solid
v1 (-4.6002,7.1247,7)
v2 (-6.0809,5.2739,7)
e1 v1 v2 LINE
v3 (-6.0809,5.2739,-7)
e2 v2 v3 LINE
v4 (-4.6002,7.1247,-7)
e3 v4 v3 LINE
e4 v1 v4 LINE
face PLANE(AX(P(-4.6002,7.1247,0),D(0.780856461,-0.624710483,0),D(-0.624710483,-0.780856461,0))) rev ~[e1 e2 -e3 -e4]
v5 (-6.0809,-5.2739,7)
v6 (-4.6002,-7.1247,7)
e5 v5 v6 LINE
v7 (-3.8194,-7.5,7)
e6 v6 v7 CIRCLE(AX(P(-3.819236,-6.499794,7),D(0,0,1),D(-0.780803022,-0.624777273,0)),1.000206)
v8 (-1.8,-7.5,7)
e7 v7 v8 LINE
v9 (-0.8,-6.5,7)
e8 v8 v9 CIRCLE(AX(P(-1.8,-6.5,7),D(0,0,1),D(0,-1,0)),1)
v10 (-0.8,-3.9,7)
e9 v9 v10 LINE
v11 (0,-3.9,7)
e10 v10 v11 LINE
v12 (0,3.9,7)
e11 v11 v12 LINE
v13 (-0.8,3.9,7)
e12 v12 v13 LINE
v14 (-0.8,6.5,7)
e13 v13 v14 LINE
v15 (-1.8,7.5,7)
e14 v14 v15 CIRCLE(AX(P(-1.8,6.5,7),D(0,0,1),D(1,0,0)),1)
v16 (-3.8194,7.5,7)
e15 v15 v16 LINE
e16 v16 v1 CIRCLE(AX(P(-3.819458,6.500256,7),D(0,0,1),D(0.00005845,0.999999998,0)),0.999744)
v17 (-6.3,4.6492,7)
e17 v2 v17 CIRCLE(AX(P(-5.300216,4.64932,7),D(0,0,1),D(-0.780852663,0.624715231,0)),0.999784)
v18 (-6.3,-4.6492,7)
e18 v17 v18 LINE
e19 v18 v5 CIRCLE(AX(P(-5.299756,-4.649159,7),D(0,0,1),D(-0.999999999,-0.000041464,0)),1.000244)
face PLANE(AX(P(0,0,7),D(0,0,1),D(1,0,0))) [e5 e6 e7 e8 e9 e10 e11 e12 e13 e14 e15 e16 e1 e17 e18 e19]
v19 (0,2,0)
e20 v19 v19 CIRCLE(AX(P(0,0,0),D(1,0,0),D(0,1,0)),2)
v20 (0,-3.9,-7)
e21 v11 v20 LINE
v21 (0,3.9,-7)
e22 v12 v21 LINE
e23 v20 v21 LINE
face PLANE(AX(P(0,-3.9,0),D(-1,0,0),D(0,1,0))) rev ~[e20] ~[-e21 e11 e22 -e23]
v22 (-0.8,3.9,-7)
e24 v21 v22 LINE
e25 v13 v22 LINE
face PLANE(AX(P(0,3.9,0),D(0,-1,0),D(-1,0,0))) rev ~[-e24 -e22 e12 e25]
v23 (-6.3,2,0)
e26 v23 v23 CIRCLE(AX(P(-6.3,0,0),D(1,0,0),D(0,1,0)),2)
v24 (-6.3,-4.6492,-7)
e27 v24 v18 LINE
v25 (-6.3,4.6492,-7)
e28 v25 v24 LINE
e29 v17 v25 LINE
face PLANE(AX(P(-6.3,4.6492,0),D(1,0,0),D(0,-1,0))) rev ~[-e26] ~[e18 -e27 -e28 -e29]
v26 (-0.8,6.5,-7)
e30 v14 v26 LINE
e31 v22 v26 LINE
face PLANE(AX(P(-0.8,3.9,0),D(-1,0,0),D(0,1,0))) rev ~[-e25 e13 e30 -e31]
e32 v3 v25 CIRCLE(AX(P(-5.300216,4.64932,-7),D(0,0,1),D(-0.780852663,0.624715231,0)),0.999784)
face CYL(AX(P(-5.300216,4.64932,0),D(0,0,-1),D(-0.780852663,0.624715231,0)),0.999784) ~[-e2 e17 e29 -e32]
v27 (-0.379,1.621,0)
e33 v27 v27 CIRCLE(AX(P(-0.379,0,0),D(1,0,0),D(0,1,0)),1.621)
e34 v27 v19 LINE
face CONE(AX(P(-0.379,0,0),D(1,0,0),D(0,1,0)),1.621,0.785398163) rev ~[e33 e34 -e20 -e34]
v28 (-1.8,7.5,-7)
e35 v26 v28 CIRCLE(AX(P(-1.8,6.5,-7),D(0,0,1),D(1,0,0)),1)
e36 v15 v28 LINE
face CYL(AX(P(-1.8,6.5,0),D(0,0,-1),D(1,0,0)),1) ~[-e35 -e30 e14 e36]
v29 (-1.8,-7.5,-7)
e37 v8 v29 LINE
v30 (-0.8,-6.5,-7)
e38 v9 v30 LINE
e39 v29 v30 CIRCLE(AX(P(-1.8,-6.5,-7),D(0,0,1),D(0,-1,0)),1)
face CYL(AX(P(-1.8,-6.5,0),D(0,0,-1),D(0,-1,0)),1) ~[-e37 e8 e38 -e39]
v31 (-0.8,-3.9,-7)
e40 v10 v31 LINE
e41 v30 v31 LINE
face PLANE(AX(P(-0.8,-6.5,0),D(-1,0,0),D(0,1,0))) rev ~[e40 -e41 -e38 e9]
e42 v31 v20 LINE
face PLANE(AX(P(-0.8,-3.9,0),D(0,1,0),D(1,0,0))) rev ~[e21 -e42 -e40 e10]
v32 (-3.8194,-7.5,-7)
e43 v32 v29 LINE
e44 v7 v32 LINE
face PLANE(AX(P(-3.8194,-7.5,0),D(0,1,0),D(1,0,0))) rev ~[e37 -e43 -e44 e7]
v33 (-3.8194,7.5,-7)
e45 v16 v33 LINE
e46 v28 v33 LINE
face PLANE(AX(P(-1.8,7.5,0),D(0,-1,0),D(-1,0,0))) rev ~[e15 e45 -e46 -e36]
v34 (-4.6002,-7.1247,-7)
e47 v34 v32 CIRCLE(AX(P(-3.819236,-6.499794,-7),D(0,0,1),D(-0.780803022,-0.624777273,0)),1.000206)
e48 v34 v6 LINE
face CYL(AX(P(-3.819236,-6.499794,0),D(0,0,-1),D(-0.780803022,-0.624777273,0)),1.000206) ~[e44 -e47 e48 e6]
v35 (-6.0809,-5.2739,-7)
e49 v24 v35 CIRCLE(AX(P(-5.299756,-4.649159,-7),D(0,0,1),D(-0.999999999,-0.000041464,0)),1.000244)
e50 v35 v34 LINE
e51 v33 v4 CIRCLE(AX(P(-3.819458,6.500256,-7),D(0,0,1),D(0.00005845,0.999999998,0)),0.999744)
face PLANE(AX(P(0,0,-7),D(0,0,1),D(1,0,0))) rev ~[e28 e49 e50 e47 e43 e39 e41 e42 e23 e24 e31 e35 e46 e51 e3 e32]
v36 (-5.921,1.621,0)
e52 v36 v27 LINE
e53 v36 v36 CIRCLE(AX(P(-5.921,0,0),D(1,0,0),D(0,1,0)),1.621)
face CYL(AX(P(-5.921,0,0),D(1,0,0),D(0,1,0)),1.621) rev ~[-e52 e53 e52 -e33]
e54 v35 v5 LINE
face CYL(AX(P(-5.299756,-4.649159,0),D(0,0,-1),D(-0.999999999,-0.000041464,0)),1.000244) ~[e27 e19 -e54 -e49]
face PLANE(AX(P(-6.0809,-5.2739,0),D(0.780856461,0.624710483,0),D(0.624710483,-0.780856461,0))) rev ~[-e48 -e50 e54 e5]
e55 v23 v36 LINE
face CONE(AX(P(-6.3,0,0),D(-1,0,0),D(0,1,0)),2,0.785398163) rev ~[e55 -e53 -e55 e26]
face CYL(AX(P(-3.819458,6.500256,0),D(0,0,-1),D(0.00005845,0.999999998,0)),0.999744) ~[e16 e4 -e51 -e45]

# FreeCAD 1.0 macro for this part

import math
import FreeCAD as App
import Part
import Sketcher

V = App.Vector
Q = App.Units.Quantity


def add_polygon(sketch, points):
    """Adds a closed chain of lines whose ends are joined by coincident constraints."""
    first, n = sketch.GeometryCount, len(points)
    for a, b in zip(points, points[1:] + points[:1]):
        sketch.addGeometry(Part.LineSegment(App.Vector(*a, 0), App.Vector(*b, 0)), False)
    for i in range(n):
        sketch.addConstraint(Sketcher.Constraint("Coincident", first + i, 2, first + (i + 1) % n, 1))

doc = App.newDocument("Part")
body = doc.addObject("PartDesign::Body", "Body")

sketch1 = body.newObject("Sketcher::SketchObject", "Sketch")
sketch1.AttachmentSupport = (doc.getObject("XY_Plane"), [""])
sketch1.MapMode = "FlatFace"
sketch1.addGeometry(Part.LineSegment(V(-6.3, 4.6, 0), V(-6.3, -4.6, 0)), False)
sketch1.addGeometry(Part.ArcOfCircle(Part.Circle(V(-5.3, -4.6, 0), V(0, 0, 1), 1), math.radians(180), math.radians(219)), False)
sketch1.addGeometry(Part.LineSegment(V(-6.1, -5.3, 0), V(-4.6, -7.1, 0)), False)
sketch1.addGeometry(Part.ArcOfCircle(Part.Circle(V(-3.8, -6.5, 0), V(0, 0, 1), 1), math.radians(-141), math.radians(-90)), False)
sketch1.addGeometry(Part.LineSegment(V(-3.8, -7.5, 0), V(-1.8, -7.5, 0)), False)
sketch1.addGeometry(Part.ArcOfCircle(Part.Circle(V(-1.8, -6.5, 0), V(0, 0, 1), 1), math.radians(-90), math.radians(0)), False)
sketch1.addGeometry(Part.LineSegment(V(-0.8, -6.5, 0), V(-0.8, -3.9, 0)), False)
sketch1.addGeometry(Part.LineSegment(V(-0.8, -3.9, 0), V(0, -3.9, 0)), False)
sketch1.addGeometry(Part.LineSegment(V(0, -3.9, 0), V(0, 3.9, 0)), False)
sketch1.addGeometry(Part.LineSegment(V(0, 3.9, 0), V(-0.8, 3.9, 0)), False)
sketch1.addGeometry(Part.LineSegment(V(-0.8, 3.9, 0), V(-0.8, 6.5, 0)), False)
sketch1.addGeometry(Part.ArcOfCircle(Part.Circle(V(-1.8, 6.5, 0), V(0, 0, 1), 1), math.radians(0), math.radians(90)), False)
sketch1.addGeometry(Part.LineSegment(V(-1.8, 7.5, 0), V(-3.8, 7.5, 0)), False)
sketch1.addGeometry(Part.ArcOfCircle(Part.Circle(V(-3.8, 6.5, 0), V(0, 0, 1), 1), math.radians(90), math.radians(141)), False)
sketch1.addGeometry(Part.LineSegment(V(-4.6, 7.1, 0), V(-6.1, 5.3, 0)), False)
sketch1.addGeometry(Part.ArcOfCircle(Part.Circle(V(-5.3, 4.6, 0), V(0, 0, 1), 1), math.radians(141), math.radians(180)), False)
sketch1.addConstraint(Sketcher.Constraint("Tangent", 0, 2, 1, 1))
sketch1.addConstraint(Sketcher.Constraint("Tangent", 1, 2, 2, 1))
sketch1.addConstraint(Sketcher.Constraint("Tangent", 2, 2, 3, 1))
sketch1.addConstraint(Sketcher.Constraint("Tangent", 3, 2, 4, 1))
sketch1.addConstraint(Sketcher.Constraint("Tangent", 4, 2, 5, 1))
sketch1.addConstraint(Sketcher.Constraint("Tangent", 5, 2, 6, 1))
sketch1.addConstraint(Sketcher.Constraint("Coincident", 6, 2, 7, 1))
sketch1.addConstraint(Sketcher.Constraint("Coincident", 7, 2, 8, 1))
sketch1.addConstraint(Sketcher.Constraint("Coincident", 8, 2, 9, 1))
sketch1.addConstraint(Sketcher.Constraint("Coincident", 9, 2, 10, 1))
sketch1.addConstraint(Sketcher.Constraint("Tangent", 10, 2, 11, 1))
sketch1.addConstraint(Sketcher.Constraint("Tangent", 11, 2, 12, 1))
sketch1.addConstraint(Sketcher.Constraint("Tangent", 12, 2, 13, 1))
sketch1.addConstraint(Sketcher.Constraint("Tangent", 13, 2, 14, 1))
sketch1.addConstraint(Sketcher.Constraint("Tangent", 14, 2, 15, 1))
sketch1.addConstraint(Sketcher.Constraint("Tangent", 15, 2, 0, 1))
sketch1.addConstraint(Sketcher.Constraint("Vertical", 0))
sketch1.addConstraint(Sketcher.Constraint("Horizontal", 4))
sketch1.addConstraint(Sketcher.Constraint("Vertical", 6))
sketch1.addConstraint(Sketcher.Constraint("Horizontal", 7))
sketch1.addConstraint(Sketcher.Constraint("Vertical", 8))
sketch1.addConstraint(Sketcher.Constraint("Horizontal", 9))
sketch1.addConstraint(Sketcher.Constraint("Vertical", 10))
sketch1.addConstraint(Sketcher.Constraint("Horizontal", 12))
sketch1.addConstraint(Sketcher.Constraint("Equal", 1, 3))
sketch1.addConstraint(Sketcher.Constraint("Equal", 3, 5))
sketch1.addConstraint(Sketcher.Constraint("Equal", 5, 11))
sketch1.addConstraint(Sketcher.Constraint("Equal", 11, 13))
sketch1.addConstraint(Sketcher.Constraint("Equal", 13, 15))
sketch1.addConstraint(Sketcher.Constraint("Symmetric", 7, 2, 8, 2, -1, 1))
sketch1.addConstraint(Sketcher.Constraint("Symmetric", 5, 3, 11, 3, -1))
sketch1.addConstraint(Sketcher.Constraint("Symmetric", 2, 2, 13, 2, -1))
sketch1.addConstraint(Sketcher.Constraint("Radius", 1, 1.0))
sketch1.addConstraint(Sketcher.Constraint("DistanceX", 7, 1, 7, 2, 0.8))
sketch1.addConstraint(Sketcher.Constraint("DistanceY", 6, 1, 6, 2, 2.6))
sketch1.addConstraint(Sketcher.Constraint("DistanceY", 8, 1, 8, 2, 7.8))
sketch1.addConstraint(Sketcher.Constraint("DistanceX", 1, 3, -1, 1, 5.3))
sketch1.addConstraint(Sketcher.Constraint("Angle", 2, Q("-51.339 deg")))
sketch1.addConstraint(Sketcher.Constraint("DistanceX", 4, 1, 4, 2, 2.0194))
pad1 = body.newObject("PartDesign::Pad", "Pad")
pad1.Profile = sketch1
pad1.Length = 14
pad1.Midplane = True

sketch2 = body.newObject("Sketcher::SketchObject", "Sketch001")
sketch2.AttachmentSupport = (doc.getObject("XY_Plane"), [""])
sketch2.MapMode = "FlatFace"
add_polygon(sketch2, [(-6.3, 0), (0, 0), (0, 2), (-0.4, 1.6), (-5.9, 1.6), (-6.3, 2)])
sketch2.addConstraint(Sketcher.Constraint("Horizontal", 0))
sketch2.addConstraint(Sketcher.Constraint("Vertical", 1))
sketch2.addConstraint(Sketcher.Constraint("Horizontal", 3))
sketch2.addConstraint(Sketcher.Constraint("Vertical", 5))
sketch2.addConstraint(Sketcher.Constraint("Coincident", 0, 2, -1, 1))
sketch2.addConstraint(Sketcher.Constraint("Perpendicular", 2, 4))
sketch2.addConstraint(Sketcher.Constraint("Horizontal", 1, 2, 4, 2))
sketch2.addConstraint(Sketcher.Constraint("Equal", 2, 4))
sketch2.addConstraint(Sketcher.Constraint("DistanceY", 1, 1, 1, 2, 2.0))
sketch2.addConstraint(Sketcher.Constraint("DistanceX", 0, 1, 0, 2, 6.3))
sketch2.addConstraint(Sketcher.Constraint("DistanceX", 3, 2, 3, 1, 5.542))
groove = body.newObject("PartDesign::Groove", "Groove")
groove.Profile = sketch2
groove.ReferenceAxis = (sketch2, ["H_Axis"])
groove.Angle = 360

doc.recompute()
